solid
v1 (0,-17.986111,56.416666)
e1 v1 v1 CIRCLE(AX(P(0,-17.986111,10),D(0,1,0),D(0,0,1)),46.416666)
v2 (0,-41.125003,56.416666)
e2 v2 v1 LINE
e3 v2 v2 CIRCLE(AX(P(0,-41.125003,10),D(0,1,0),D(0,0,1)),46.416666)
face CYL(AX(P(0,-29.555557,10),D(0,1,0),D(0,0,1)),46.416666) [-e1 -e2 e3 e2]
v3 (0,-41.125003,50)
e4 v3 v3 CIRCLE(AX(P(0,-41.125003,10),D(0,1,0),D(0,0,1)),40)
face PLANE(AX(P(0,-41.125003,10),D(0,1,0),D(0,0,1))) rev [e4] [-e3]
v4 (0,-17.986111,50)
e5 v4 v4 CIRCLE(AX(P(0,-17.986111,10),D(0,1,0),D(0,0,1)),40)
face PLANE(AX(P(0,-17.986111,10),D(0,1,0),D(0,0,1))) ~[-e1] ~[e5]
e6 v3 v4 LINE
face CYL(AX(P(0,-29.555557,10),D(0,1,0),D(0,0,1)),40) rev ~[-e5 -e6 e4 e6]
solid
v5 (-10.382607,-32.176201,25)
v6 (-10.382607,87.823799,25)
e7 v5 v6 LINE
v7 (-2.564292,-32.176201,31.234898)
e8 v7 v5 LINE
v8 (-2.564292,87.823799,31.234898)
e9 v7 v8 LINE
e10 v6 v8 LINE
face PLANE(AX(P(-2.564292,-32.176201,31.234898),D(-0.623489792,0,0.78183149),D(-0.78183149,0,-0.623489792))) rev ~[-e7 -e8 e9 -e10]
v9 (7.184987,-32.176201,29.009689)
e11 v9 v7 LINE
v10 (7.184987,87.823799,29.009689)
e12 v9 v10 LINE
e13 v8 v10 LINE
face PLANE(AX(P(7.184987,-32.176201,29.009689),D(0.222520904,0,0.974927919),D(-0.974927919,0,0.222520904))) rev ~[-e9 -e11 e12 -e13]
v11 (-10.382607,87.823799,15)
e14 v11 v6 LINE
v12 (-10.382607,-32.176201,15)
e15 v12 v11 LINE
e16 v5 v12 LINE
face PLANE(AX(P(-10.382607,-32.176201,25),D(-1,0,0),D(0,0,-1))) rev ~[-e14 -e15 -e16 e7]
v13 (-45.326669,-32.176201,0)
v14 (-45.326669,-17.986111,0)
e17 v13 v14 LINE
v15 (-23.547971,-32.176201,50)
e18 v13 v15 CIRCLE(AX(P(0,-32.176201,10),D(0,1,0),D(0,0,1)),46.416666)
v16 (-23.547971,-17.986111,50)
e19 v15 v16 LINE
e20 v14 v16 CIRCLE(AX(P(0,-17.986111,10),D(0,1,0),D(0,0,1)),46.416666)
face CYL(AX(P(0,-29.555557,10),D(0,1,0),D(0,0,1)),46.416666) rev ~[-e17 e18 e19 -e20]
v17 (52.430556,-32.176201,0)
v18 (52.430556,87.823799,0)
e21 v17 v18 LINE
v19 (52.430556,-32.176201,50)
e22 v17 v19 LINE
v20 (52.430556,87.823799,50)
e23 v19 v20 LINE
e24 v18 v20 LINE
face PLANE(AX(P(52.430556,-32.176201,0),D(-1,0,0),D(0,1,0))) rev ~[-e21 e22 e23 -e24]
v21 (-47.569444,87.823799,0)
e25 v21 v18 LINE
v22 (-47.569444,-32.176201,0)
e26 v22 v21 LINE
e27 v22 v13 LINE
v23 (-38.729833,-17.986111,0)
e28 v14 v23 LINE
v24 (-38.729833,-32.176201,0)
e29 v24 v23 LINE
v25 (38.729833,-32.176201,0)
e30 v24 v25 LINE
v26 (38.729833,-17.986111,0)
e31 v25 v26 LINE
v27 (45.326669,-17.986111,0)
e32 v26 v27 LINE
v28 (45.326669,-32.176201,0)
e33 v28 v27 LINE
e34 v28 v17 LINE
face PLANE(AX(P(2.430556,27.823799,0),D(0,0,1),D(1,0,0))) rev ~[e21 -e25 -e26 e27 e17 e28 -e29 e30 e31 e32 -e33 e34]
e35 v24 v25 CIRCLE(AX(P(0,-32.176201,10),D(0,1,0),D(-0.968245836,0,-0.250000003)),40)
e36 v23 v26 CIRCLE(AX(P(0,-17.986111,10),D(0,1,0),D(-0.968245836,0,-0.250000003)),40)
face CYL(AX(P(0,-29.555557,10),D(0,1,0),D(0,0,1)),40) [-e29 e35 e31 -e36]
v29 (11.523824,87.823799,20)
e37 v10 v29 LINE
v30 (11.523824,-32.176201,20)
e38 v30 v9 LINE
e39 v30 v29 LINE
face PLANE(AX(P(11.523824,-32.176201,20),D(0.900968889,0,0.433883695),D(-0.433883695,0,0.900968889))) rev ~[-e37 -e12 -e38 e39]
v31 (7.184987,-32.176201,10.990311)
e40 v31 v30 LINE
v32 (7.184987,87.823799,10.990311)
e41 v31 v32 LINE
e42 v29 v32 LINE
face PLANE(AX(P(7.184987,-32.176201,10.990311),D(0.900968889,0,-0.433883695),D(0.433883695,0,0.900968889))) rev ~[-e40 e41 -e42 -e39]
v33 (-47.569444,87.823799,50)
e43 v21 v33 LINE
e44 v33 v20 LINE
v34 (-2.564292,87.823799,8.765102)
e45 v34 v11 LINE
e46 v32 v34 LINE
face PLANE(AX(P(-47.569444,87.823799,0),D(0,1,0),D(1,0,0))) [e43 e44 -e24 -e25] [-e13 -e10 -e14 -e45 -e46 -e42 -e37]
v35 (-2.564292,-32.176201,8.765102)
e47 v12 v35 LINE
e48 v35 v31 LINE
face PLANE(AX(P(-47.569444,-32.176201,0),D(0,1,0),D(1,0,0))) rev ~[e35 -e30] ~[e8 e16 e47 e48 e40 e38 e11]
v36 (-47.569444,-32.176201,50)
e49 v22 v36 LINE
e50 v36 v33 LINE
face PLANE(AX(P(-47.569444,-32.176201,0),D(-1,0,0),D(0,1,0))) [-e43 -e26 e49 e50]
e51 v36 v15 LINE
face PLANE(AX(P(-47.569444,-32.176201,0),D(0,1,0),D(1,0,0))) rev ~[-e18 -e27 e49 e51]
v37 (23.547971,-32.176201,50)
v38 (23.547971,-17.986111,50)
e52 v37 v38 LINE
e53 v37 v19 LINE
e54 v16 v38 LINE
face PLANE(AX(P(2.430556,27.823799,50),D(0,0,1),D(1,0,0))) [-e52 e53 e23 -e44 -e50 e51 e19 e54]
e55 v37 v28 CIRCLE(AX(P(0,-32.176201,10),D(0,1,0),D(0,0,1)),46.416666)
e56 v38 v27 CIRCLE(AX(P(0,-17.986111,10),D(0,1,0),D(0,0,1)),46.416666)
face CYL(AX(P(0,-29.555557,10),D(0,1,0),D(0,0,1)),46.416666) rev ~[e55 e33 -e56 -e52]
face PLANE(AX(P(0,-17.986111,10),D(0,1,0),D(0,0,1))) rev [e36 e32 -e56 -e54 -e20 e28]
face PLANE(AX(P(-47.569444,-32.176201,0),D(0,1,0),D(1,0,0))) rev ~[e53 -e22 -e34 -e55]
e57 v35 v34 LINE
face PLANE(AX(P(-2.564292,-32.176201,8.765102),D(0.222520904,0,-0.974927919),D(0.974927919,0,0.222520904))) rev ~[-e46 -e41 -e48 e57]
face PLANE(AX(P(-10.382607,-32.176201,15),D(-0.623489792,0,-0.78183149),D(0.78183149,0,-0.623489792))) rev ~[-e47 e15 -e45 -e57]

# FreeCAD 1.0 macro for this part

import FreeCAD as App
import Part
import Sketcher

V = App.Vector
Q = App.Units.Quantity

doc = App.newDocument("Part")
params = doc.addObject("Spreadsheet::Sheet", "Params")
for row, (alias, value) in enumerate([
    ("sketch1_width", "100 mm"),
    ("sketch1_height", "120 mm"),
    ("pad1_length", "50 mm"),
    ("sketch2_height", "10 mm"),
    ("sketch2_length", "10 mm"),
    ("revolution_angle", "360 deg"),
], start=1):
    params.set(f"A{row}", alias)
    params.set(f"B{row}", "=" + value)
    params.setAlias(f"B{row}", alias)

body = doc.addObject("PartDesign::Body", "Body")

# Sketch on XY plane
sketch1 = body.newObject("Sketcher::SketchObject", "Sketch")
sketch1.AttachmentSupport = (doc.getObject("XY_Plane"), [""])
sketch1.MapMode = "FlatFace"
sketch1.addGeometry(Part.LineSegment(V(-48, 88, 0), V(-48, -32, 0)), False)
sketch1.addGeometry(Part.LineSegment(V(-48, -32, 0), V(52, -32, 0)), False)
sketch1.addGeometry(Part.LineSegment(V(52, -32, 0), V(52, 88, 0)), False)
sketch1.addGeometry(Part.LineSegment(V(52, 88, 0), V(-48, 88, 0)), False)
sketch1.addConstraint(Sketcher.Constraint("Coincident", 0, 2, 1, 1))
sketch1.addConstraint(Sketcher.Constraint("Coincident", 1, 2, 2, 1))
sketch1.addConstraint(Sketcher.Constraint("Coincident", 2, 2, 3, 1))
sketch1.addConstraint(Sketcher.Constraint("Coincident", 3, 2, 0, 1))
sketch1.addConstraint(Sketcher.Constraint("Vertical", 0))
sketch1.addConstraint(Sketcher.Constraint("Horizontal", 1))
sketch1.addConstraint(Sketcher.Constraint("Vertical", 2))
sketch1.addConstraint(Sketcher.Constraint("Horizontal", 3))
sketch1.addConstraint(Sketcher.Constraint("DistanceX", 1, 1, 1, 2, Q("100 mm")))
sketch1.addConstraint(Sketcher.Constraint("DistanceY", 0, 2, 0, 1, Q("120 mm")))
sketch1.addConstraint(Sketcher.Constraint("DistanceY", 0, 2, -1, 1, Q("32.176201 mm")))
sketch1.addConstraint(Sketcher.Constraint("DistanceX", 0, 2, -1, 1, Q("47.569444 mm")))
sketch1.setExpression("Constraints[8]", "Params.sketch1_width")
sketch1.setExpression("Constraints[9]", "Params.sketch1_height")
pad1 = body.newObject("PartDesign::Pad", "Pad")
pad1.Profile = sketch1
pad1.setExpression("Length", "Params.pad1_length")

# Sketch on XZ plane
sketch2 = body.newObject("Sketcher::SketchObject", "Sketch001")
sketch2.AttachmentSupport = (doc.getObject("XZ_Plane"), [""])
sketch2.MapMode = "FlatFace"
sketch2.AttachmentOffset = App.Placement(V(0, 0, 32.176201), App.Rotation())
sketch2.addGeometry(Part.LineSegment(V(7, 29, 0), V(-3, 31, 0)), False)
sketch2.addGeometry(Part.LineSegment(V(-3, 31, 0), V(-10, 25, 0)), False)
sketch2.addGeometry(Part.LineSegment(V(-10, 25, 0), V(-10, 15, 0)), False)
sketch2.addGeometry(Part.LineSegment(V(-10, 15, 0), V(-3, 9, 0)), False)
sketch2.addGeometry(Part.LineSegment(V(-3, 9, 0), V(7, 11, 0)), False)
sketch2.addGeometry(Part.LineSegment(V(7, 11, 0), V(12, 20, 0)), False)
sketch2.addGeometry(Part.LineSegment(V(12, 20, 0), V(7, 29, 0)), False)
sketch2.addConstraint(Sketcher.Constraint("Coincident", 0, 2, 1, 1))
sketch2.addConstraint(Sketcher.Constraint("Coincident", 1, 2, 2, 1))
sketch2.addConstraint(Sketcher.Constraint("Coincident", 2, 2, 3, 1))
sketch2.addConstraint(Sketcher.Constraint("Coincident", 3, 2, 4, 1))
sketch2.addConstraint(Sketcher.Constraint("Coincident", 4, 2, 5, 1))
sketch2.addConstraint(Sketcher.Constraint("Coincident", 5, 2, 6, 1))
sketch2.addConstraint(Sketcher.Constraint("Coincident", 6, 2, 0, 1))
sketch2.addConstraint(Sketcher.Constraint("Vertical", 2))
sketch2.addConstraint(Sketcher.Constraint("Vertical", 0, 2, 3, 2))
sketch2.addConstraint(Sketcher.Constraint("Vertical", 4, 2, 6, 2))
sketch2.addConstraint(Sketcher.Constraint("Equal", 0, 1))
sketch2.addConstraint(Sketcher.Constraint("Equal", 1, 3))
sketch2.addConstraint(Sketcher.Constraint("Equal", 3, 4))
sketch2.addConstraint(Sketcher.Constraint("Equal", 4, 5))
sketch2.addConstraint(Sketcher.Constraint("Equal", 5, 6))
sketch2.addConstraint(Sketcher.Constraint("DistanceY", 2, 2, 2, 1, Q("10 mm")))
sketch2.addConstraint(Sketcher.Constraint("Distance", 0, Q("10 mm")))
sketch2.addConstraint(Sketcher.Constraint("DistanceY", -1, 1, 1, 2, Q("25 mm")))
sketch2.addConstraint(Sketcher.Constraint("DistanceY", -1, 1, 0, 2, Q("31.234898 mm")))
sketch2.addConstraint(Sketcher.Constraint("DistanceX", 0, 2, -1, 1, Q("2.564292 mm")))
sketch2.addConstraint(Sketcher.Constraint("DistanceY", -1, 1, 4, 2, Q("10.990311 mm")))
sketch2.setExpression("Constraints[15]", "Params.sketch2_height")
sketch2.setExpression("Constraints[16]", "Params.sketch2_length")
pocket1 = body.newObject("PartDesign::Pocket", "Pocket")
pocket1.Profile = sketch2
pocket1.Type = "ThroughAll"
body2 = doc.addObject("PartDesign::Body", "Body001")

# Sketch on YZ plane
sketch3 = body2.newObject("Sketcher::SketchObject", "Sketch002")
sketch3.AttachmentSupport = (doc.getObject("YZ_Plane001"), [""])
sketch3.MapMode = "FlatFace"
sketch3.addGeometry(Part.LineSegment(V(-41, 56, 0), V(-41, 50, 0)), False)
sketch3.addGeometry(Part.LineSegment(V(-41, 50, 0), V(-18, 50, 0)), False)
sketch3.addGeometry(Part.LineSegment(V(-18, 50, 0), V(-18, 56, 0)), False)
sketch3.addGeometry(Part.LineSegment(V(-18, 56, 0), V(-41, 56, 0)), False)
sketch3.addGeometry(Part.LineSegment(V(-41, 10, 0), V(-18, 10, 0)), True)  # axis
sketch3.addConstraint(Sketcher.Constraint("Coincident", 0, 2, 1, 1))
sketch3.addConstraint(Sketcher.Constraint("Coincident", 1, 2, 2, 1))
sketch3.addConstraint(Sketcher.Constraint("Coincident", 2, 2, 3, 1))
sketch3.addConstraint(Sketcher.Constraint("Coincident", 3, 2, 0, 1))
sketch3.addConstraint(Sketcher.Constraint("Vertical", 0))
sketch3.addConstraint(Sketcher.Constraint("Horizontal", 1))
sketch3.addConstraint(Sketcher.Constraint("Vertical", 2))
sketch3.addConstraint(Sketcher.Constraint("Horizontal", 3))
sketch3.addConstraint(Sketcher.Constraint("Horizontal", 4))
sketch3.addConstraint(Sketcher.Constraint("Vertical", 3, 2, 4, 1))
sketch3.addConstraint(Sketcher.Constraint("Vertical", 2, 2, 4, 2))
sketch3.addConstraint(Sketcher.Constraint("DistanceY", -1, 1, 0, 2, Q("50 mm")))
sketch3.addConstraint(Sketcher.Constraint("DistanceY", -1, 1, 4, 1, Q("10 mm")))
sketch3.addConstraint(Sketcher.Constraint("DistanceX", 1, 1, 1, 2, Q("23.138892 mm")))
sketch3.addConstraint(Sketcher.Constraint("DistanceY", 0, 2, 0, 1, Q("6.416667 mm")))
sketch3.addConstraint(Sketcher.Constraint("DistanceX", 1, 2, -1, 1, Q("17.986111 mm")))
revolution = body2.newObject("PartDesign::Revolution", "Revolution")
revolution.Profile = sketch3
revolution.ReferenceAxis = (sketch3, ["Axis0"])
revolution.setExpression("Angle", "Params.revolution_angle")
doc.recompute()

body3 = doc.addObject("PartDesign::Body", "Body002")
body3.BaseFeature = body2
boolean = body.newObject("PartDesign::Boolean", "Boolean")
boolean.Type = "Cut"
boolean.addObjects([body3])
doc.recompute()

doc.recompute()
